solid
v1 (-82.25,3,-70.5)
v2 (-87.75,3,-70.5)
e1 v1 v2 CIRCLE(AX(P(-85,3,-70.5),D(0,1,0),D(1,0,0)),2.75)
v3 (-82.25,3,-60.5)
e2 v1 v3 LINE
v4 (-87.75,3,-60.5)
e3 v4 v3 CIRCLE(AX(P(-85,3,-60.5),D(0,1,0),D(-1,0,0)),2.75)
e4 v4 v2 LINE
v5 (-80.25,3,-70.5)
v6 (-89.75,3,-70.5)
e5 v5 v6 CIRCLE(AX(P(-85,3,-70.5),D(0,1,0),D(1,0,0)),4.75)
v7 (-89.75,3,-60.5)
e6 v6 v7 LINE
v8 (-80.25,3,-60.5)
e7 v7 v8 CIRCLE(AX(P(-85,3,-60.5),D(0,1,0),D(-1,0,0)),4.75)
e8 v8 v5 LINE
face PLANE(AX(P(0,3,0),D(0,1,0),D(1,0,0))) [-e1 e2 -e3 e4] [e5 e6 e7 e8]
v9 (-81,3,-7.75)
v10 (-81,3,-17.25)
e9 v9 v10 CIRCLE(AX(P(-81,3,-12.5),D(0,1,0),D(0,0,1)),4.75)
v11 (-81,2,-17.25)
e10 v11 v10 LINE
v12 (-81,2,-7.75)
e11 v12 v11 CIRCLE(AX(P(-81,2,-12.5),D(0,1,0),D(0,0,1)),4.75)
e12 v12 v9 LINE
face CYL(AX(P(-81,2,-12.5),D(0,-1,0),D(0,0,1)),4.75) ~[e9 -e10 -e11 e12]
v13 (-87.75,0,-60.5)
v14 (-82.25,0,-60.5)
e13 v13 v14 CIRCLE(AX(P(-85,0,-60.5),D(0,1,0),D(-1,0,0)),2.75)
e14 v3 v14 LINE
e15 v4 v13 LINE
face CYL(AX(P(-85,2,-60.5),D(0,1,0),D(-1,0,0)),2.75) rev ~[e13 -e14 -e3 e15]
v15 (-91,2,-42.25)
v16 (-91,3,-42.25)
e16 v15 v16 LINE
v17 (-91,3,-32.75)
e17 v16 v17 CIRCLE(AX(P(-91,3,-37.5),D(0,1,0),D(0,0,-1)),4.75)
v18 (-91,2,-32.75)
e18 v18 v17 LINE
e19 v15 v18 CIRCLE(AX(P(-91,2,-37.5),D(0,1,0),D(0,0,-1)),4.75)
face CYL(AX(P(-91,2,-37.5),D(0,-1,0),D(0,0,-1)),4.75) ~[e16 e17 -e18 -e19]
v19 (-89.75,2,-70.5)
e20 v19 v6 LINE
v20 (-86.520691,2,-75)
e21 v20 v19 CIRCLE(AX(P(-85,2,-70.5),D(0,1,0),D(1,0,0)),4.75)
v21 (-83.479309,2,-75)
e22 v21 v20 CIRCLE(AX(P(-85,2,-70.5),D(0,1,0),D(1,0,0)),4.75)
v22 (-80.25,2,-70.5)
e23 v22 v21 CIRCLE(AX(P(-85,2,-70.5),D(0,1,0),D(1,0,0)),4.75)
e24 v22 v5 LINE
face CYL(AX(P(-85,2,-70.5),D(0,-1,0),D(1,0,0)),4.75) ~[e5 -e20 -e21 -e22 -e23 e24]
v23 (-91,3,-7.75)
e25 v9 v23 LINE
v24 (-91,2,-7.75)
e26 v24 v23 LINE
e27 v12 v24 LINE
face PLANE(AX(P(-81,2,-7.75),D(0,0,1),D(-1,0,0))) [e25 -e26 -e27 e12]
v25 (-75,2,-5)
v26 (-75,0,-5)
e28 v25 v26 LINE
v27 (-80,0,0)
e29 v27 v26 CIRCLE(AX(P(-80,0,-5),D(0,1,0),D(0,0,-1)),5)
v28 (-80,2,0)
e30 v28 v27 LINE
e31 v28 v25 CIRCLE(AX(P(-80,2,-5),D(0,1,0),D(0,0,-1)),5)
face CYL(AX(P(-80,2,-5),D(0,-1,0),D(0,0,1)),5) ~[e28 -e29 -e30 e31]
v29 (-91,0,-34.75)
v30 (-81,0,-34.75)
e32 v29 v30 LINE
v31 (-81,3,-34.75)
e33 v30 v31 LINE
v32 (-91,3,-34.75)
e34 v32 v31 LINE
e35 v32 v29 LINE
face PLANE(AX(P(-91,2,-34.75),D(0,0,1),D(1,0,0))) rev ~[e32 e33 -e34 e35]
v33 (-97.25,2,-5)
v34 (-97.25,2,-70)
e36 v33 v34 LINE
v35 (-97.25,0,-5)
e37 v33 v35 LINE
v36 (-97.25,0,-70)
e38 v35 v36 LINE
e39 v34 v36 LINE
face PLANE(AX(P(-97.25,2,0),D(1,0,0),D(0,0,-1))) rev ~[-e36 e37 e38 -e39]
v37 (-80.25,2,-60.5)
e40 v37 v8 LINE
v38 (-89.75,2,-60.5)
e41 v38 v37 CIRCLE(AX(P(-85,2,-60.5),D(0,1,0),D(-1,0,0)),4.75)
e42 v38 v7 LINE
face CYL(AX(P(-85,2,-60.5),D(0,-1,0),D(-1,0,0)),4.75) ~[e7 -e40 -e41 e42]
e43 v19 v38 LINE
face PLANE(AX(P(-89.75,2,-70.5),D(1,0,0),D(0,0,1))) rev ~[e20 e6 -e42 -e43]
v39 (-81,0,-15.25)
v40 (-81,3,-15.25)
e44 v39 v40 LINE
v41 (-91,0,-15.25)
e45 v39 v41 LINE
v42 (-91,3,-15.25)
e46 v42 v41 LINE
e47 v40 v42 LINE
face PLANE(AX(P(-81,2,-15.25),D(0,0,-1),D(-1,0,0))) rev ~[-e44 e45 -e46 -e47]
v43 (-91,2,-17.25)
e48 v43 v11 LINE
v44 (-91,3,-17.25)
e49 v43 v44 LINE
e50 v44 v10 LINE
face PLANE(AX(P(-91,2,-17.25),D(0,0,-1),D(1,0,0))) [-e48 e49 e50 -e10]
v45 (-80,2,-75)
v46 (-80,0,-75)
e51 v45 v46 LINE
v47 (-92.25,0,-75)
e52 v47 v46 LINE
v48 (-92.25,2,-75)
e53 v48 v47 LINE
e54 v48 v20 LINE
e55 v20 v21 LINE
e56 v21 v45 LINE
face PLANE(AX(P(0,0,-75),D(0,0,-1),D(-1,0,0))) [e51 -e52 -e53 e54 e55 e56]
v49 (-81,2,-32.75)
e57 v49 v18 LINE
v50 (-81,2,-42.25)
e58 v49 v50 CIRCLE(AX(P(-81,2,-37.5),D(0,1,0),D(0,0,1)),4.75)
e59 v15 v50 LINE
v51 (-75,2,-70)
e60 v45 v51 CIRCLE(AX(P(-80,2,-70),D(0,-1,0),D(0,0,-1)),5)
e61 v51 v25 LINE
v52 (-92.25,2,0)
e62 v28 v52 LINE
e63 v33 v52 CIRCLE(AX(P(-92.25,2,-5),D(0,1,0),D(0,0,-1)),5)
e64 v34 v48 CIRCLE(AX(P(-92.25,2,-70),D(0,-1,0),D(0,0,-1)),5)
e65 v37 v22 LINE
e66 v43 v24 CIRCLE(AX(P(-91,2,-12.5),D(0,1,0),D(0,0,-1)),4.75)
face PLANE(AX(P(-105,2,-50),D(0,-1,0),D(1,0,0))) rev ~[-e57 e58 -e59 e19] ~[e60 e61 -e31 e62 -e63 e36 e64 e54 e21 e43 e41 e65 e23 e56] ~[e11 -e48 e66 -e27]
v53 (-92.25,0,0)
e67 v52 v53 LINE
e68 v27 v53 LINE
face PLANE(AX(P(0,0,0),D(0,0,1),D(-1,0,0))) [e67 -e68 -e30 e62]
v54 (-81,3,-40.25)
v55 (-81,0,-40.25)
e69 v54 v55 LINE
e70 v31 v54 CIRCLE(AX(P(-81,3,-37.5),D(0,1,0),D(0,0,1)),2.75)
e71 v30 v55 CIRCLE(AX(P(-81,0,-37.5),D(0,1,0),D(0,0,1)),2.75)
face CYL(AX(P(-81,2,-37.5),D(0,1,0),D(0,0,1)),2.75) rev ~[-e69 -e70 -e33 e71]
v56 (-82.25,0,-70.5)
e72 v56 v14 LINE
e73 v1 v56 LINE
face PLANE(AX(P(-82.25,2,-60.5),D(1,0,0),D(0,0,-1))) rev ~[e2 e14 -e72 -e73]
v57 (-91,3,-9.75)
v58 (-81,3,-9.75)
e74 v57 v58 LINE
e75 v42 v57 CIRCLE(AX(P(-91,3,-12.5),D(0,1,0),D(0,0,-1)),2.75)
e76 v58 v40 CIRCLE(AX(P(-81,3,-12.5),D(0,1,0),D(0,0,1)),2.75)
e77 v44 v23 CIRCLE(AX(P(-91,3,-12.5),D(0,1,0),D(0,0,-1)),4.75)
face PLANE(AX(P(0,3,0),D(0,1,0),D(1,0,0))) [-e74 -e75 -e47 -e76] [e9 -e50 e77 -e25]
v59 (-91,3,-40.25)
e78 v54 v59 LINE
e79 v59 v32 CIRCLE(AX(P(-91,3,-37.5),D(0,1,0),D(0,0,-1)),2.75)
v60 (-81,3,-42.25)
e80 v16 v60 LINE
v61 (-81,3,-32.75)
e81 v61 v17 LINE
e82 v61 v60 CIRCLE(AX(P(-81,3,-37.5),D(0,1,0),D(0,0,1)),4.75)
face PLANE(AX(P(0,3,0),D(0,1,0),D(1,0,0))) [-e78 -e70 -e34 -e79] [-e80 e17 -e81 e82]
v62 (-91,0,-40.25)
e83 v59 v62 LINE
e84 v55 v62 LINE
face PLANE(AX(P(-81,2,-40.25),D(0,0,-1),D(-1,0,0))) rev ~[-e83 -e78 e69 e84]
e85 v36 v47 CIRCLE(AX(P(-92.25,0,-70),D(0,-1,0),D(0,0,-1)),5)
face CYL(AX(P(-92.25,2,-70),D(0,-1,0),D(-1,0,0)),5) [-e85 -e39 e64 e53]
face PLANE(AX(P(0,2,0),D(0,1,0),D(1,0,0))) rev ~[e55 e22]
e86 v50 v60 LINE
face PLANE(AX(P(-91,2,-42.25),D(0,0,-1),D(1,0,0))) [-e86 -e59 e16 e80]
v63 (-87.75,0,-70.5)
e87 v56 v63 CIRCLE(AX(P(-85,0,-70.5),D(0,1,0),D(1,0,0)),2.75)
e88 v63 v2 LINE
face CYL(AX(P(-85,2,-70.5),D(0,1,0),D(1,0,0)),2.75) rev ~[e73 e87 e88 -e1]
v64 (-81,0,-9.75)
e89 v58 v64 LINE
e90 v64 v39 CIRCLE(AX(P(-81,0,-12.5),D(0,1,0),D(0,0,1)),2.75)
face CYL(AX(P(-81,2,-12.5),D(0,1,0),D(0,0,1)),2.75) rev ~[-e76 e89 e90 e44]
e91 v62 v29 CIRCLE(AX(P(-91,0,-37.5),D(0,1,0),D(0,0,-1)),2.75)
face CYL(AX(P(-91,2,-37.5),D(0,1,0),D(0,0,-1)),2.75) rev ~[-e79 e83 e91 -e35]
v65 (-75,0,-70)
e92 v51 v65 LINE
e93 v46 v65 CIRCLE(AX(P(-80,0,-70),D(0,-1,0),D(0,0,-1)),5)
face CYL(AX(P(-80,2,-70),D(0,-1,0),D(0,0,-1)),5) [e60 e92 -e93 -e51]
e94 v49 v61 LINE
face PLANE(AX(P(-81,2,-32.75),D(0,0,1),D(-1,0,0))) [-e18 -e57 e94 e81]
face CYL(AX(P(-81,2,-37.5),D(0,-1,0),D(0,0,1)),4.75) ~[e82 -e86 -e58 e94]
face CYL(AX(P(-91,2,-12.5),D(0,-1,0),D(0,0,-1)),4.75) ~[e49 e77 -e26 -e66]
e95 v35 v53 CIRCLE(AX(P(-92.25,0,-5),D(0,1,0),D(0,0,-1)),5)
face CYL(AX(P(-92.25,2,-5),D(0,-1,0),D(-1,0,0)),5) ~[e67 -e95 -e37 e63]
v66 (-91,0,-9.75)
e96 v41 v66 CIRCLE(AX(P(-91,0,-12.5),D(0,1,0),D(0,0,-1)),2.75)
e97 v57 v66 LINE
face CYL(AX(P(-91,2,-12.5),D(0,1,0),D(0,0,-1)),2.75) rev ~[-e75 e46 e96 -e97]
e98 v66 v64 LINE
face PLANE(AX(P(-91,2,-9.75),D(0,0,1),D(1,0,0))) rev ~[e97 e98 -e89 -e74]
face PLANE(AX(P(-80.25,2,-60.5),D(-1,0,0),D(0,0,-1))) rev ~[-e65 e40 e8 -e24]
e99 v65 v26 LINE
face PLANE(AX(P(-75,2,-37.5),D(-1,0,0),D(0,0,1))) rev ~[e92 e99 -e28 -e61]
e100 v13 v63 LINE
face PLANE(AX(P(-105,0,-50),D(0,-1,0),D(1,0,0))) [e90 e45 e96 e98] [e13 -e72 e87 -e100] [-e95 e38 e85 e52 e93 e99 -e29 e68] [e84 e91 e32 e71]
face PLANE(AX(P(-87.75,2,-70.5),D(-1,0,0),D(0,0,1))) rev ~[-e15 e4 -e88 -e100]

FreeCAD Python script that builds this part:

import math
import FreeCAD as App
import Part
import Sketcher
from FreeCAD import Vector


def edges_at(feature, points):
    """Names of the edges that pass closest to the given points."""
    edges = feature.Shape.Edges
    near = lambda p: min(range(len(edges)), key=lambda i: edges[i].distToShape(Part.Vertex(*p))[0])
    return sorted({f"Edge{near(p) + 1}" for p in points})


def add_polygon(sketch, points):
    """Adds a closed chain of lines whose ends are joined by coincident constraints."""
    first, n = sketch.GeometryCount, len(points)
    for a, b in zip(points, points[1:] + points[:1]):
        sketch.addGeometry(Part.LineSegment(App.Vector(*a, 0), App.Vector(*b, 0)), False)
    for i in range(n):
        sketch.addConstraint(Sketcher.Constraint("Coincident", first + i, 2, first + (i + 1) % n, 1))

doc = App.newDocument("Part")
body = doc.addObject("PartDesign::Body", "Body")

# Sketch on XZ plane
sketch1 = doc.addObject("Sketcher::SketchObject", "Sketch")
body.addObject(sketch1)
sketch1.AttachmentSupport = (doc.XZ_Plane, [""])
sketch1.MapMode = "FlatFace"
add_polygon(sketch1, [(-105, 0), (0, 0), (0, -50), (-105, -50)])  # lines 0-3
sketch1.addConstraint(Sketcher.Constraint("Horizontal", 0))
sketch1.addConstraint(Sketcher.Constraint("Vertical", 1))
sketch1.addConstraint(Sketcher.Constraint("Horizontal", 2))
sketch1.addConstraint(Sketcher.Constraint("Vertical", 3))
sketch1.addConstraint(Sketcher.Constraint("Coincident", 0, 2, -1, 1))
sketch1.addConstraint(Sketcher.Constraint("DistanceX", 0, 1, 0, 2, 105.0))
sketch1.addConstraint(Sketcher.Constraint("DistanceY", 1, 2, 1, 1, 50.0))
pad1 = doc.addObject("PartDesign::Pad", "Pad")
body.addObject(pad1)
pad1.Profile = sketch1
pad1.Length = 2
pad1.Reversed = True

# Sketch on XZ plane
sketch2 = doc.addObject("Sketcher::SketchObject", "Sketch001")
body.addObject(sketch2)
sketch2.AttachmentSupport = (doc.XZ_Plane, [""])
sketch2.MapMode = "FlatFace"
sketch2.AttachmentOffset = App.Placement(Vector(0, 0, -2), App.Rotation())
sketch2.addGeometry(Part.Circle(Vector(-20, -12.5, 0), Vector(0, 0, 1), 2.8), False)
sketch2.addGeometry(Part.Circle(Vector(-20, -37.5, 0), Vector(0, 0, 1), 2.8), False)
sketch2.addConstraint(Sketcher.Constraint("Equal", 0, 1))
sketch2.addConstraint(Sketcher.Constraint("Vertical", 0, 3, 1, 3))
sketch2.addConstraint(Sketcher.Constraint("Diameter", 0, 5.5))
sketch2.addConstraint(Sketcher.Constraint("DistanceX", 0, 3, -1, 1, 20.0))
sketch2.addConstraint(Sketcher.Constraint("DistanceY", 1, 3, 0, 3, 25.0))
sketch2.addConstraint(Sketcher.Constraint("DistanceY", 0, 3, -1, 1, 12.5))
pocket1 = doc.addObject("PartDesign::Pocket", "Pocket")
body.addObject(pocket1)
pocket1.Profile = sketch2
pocket1.Type = "ThroughAll"
pocket1.Reversed = True

# Sketch on XZ plane
sketch3 = doc.addObject("Sketcher::SketchObject", "Sketch002")
body.addObject(sketch3)
sketch3.AttachmentSupport = (doc.XZ_Plane, [""])
sketch3.MapMode = "FlatFace"
sketch3.AttachmentOffset = App.Placement(Vector(0, 0, -2), App.Rotation())
sketch3.addGeometry(Part.ArcOfCircle(Part.Circle(Vector(-81, -12.5, 0), Vector(0, 0, 1), 2.8), math.radians(-90), math.radians(90)), False)
sketch3.addGeometry(Part.LineSegment(Vector(-81, -15.2, 0), Vector(-91, -15.2, 0)), False)
sketch3.addGeometry(Part.ArcOfCircle(Part.Circle(Vector(-91, -12.5, 0), Vector(0, 0, 1), 2.8), math.radians(90), math.radians(270)), False)
sketch3.addGeometry(Part.LineSegment(Vector(-91, -9.8, 0), Vector(-81, -9.8, 0)), False)
sketch3.addConstraint(Sketcher.Constraint("Tangent", 0, 1, 1, 1))
sketch3.addConstraint(Sketcher.Constraint("Tangent", 1, 2, 2, 2))
sketch3.addConstraint(Sketcher.Constraint("Tangent", 2, 1, 3, 1))
sketch3.addConstraint(Sketcher.Constraint("Tangent", 3, 2, 0, 2))
sketch3.addConstraint(Sketcher.Constraint("Horizontal", 1))
sketch3.addConstraint(Sketcher.Constraint("Horizontal", 3))
sketch3.addConstraint(Sketcher.Constraint("DistanceX", 1, 2, 1, 1, 10.0))
sketch3.addConstraint(Sketcher.Constraint("Radius", 0, 2.75))
sketch3.addConstraint(Sketcher.Constraint("DistanceX", 0, 3, -1, 1, 81.0))
sketch3.addConstraint(Sketcher.Constraint("DistanceY", 0, 3, -1, 1, 12.5))
pocket2 = doc.addObject("PartDesign::Pocket", "Pocket001")
body.addObject(pocket2)
pocket2.Profile = sketch3
pocket2.Type = "ThroughAll"
pocket2.Reversed = True
doc.recompute()

linearpattern = doc.addObject("PartDesign::LinearPattern", "LinearPattern")
body.addObject(linearpattern)
linearpattern.Originals = [pocket2]
linearpattern.Direction = (doc.Z_Axis, [""])
linearpattern.Mode = "offset"
linearpattern.Offset = 25
linearpattern.Occurrences = 2
linearpattern.Reversed = True
body.Tip = linearpattern

# Sketch on XY plane
sketch4 = doc.addObject("Sketcher::SketchObject", "Sketch003")
body.addObject(sketch4)
sketch4.AttachmentSupport = (doc.XY_Plane, [""])
sketch4.MapMode = "FlatFace"
sketch4.AttachmentOffset = App.Placement(Vector(0, 0, -50), App.Rotation())
add_polygon(sketch4, [(-75, 0), (-105, 0), (-105, 2), (-75, 2)])  # lines 0-3
sketch4.addConstraint(Sketcher.Constraint("Horizontal", 0))
sketch4.addConstraint(Sketcher.Constraint("Vertical", 1))
sketch4.addConstraint(Sketcher.Constraint("Horizontal", 2))
sketch4.addConstraint(Sketcher.Constraint("Vertical", 3))
sketch4.addConstraint(Sketcher.Constraint("PointOnObject", 0, 2, -1))
sketch4.addConstraint(Sketcher.Constraint("DistanceX", 0, 2, 0, 1, 30.0))
sketch4.addConstraint(Sketcher.Constraint("DistanceY", 1, 1, 1, 2, 2.0))
sketch4.addConstraint(Sketcher.Constraint("DistanceX", 0, 2, -1, 1, 105.0))
pad2 = doc.addObject("PartDesign::Pad", "Pad001")
body.addObject(pad2)
pad2.Profile = sketch4
pad2.Length = 25
pad2.Reversed = True

# Sketch on XZ plane
sketch5 = doc.addObject("Sketcher::SketchObject", "Sketch004")
body.addObject(sketch5)
sketch5.AttachmentSupport = (doc.XZ_Plane, [""])
sketch5.MapMode = "FlatFace"
sketch5.AttachmentOffset = App.Placement(Vector(0, 0, -2), App.Rotation())
sketch5.addGeometry(Part.ArcOfCircle(Part.Circle(Vector(-85, -60.5, 0), Vector(0, 0, 1), 2.8), math.radians(0), math.radians(180)), False)
sketch5.addGeometry(Part.LineSegment(Vector(-82.2, -60.5, 0), Vector(-82.2, -70.5, 0)), False)
sketch5.addGeometry(Part.ArcOfCircle(Part.Circle(Vector(-85, -70.5, 0), Vector(0, 0, 1), 2.8), math.radians(180), math.radians(360)), False)
sketch5.addGeometry(Part.LineSegment(Vector(-87.8, -70.5, 0), Vector(-87.8, -60.5, 0)), False)
sketch5.addConstraint(Sketcher.Constraint("Tangent", 0, 1, 1, 1))
sketch5.addConstraint(Sketcher.Constraint("Tangent", 1, 2, 2, 2))
sketch5.addConstraint(Sketcher.Constraint("Tangent", 2, 1, 3, 1))
sketch5.addConstraint(Sketcher.Constraint("Tangent", 3, 2, 0, 2))
sketch5.addConstraint(Sketcher.Constraint("Vertical", 1))
sketch5.addConstraint(Sketcher.Constraint("Vertical", 3))
sketch5.addConstraint(Sketcher.Constraint("DistanceY", 1, 2, 1, 1, 10.0))
sketch5.addConstraint(Sketcher.Constraint("Radius", 0, 2.75))
sketch5.addConstraint(Sketcher.Constraint("DistanceX", 0, 3, -1, 1, 85.0))
sketch5.addConstraint(Sketcher.Constraint("DistanceY", 0, 3, -1, 1, 60.5))
pocket3 = doc.addObject("PartDesign::Pocket", "Pocket002")
body.addObject(pocket3)
pocket3.Profile = sketch5
pocket3.Type = "ThroughAll"
pocket3.Reversed = True
doc.recompute()

fillet = doc.addObject("PartDesign::Fillet", "Fillet")
body.addObject(fillet)
fillet.Base = (pocket3, edges_at(pocket3, [
    (-105, 1, 0),
    (0, 1, 0),
    (-75, 1, -75),
    (-105, 1, -75),
    (0, 1, -50),
    (-75, 1, -50),
]))
fillet.Radius = 5

# Sketch on XZ plane
sketch6 = doc.addObject("Sketcher::SketchObject", "Sketch005")
body.addObject(sketch6)
sketch6.AttachmentSupport = (doc.XZ_Plane, [""])
sketch6.MapMode = "FlatFace"
sketch6.AttachmentOffset = App.Placement(Vector(0, 0, -2), App.Rotation())
sketch6.addGeometry(Part.Circle(Vector(-62, -12.5, 0), Vector(0, 0, 1), 2.8), False)
sketch6.addGeometry(Part.Circle(Vector(-42, -12.5, 0), Vector(0, 0, 1), 2.8), False)
sketch6.addGeometry(Part.Circle(Vector(-42, -37.5, 0), Vector(0, 0, 1), 2.8), False)
sketch6.addGeometry(Part.Circle(Vector(-62, -37.5, 0), Vector(0, 0, 1), 2.8), False)
sketch6.addConstraint(Sketcher.Constraint("Equal", 0, 1))
sketch6.addConstraint(Sketcher.Constraint("Equal", 1, 2))
sketch6.addConstraint(Sketcher.Constraint("Equal", 2, 3))
sketch6.addConstraint(Sketcher.Constraint("Horizontal", 0, 3, 1, 3))
sketch6.addConstraint(Sketcher.Constraint("Horizontal", 2, 3, 3, 3))
sketch6.addConstraint(Sketcher.Constraint("Vertical", 1, 3, 2, 3))
sketch6.addConstraint(Sketcher.Constraint("Vertical", 0, 3, 3, 3))
sketch6.addConstraint(Sketcher.Constraint("Diameter", 0, 5.5))
sketch6.addConstraint(Sketcher.Constraint("DistanceX", 0, 3, 1, 3, 20.0))
sketch6.addConstraint(Sketcher.Constraint("DistanceY", 2, 3, 1, 3, 25.0))
sketch6.addConstraint(Sketcher.Constraint("DistanceX", 0, 3, -1, 1, 62.0))
sketch6.addConstraint(Sketcher.Constraint("DistanceY", 0, 3, -1, 1, 12.5))
pocket4 = doc.addObject("PartDesign::Pocket", "Pocket003")
body.addObject(pocket4)
pocket4.Profile = sketch6
pocket4.Type = "ThroughAll"
pocket4.Reversed = True

# Sketch on XZ plane
sketch7 = doc.addObject("Sketcher::SketchObject", "Sketch006")
body.addObject(sketch7)
sketch7.AttachmentSupport = (doc.XZ_Plane, [""])
sketch7.MapMode = "FlatFace"
sketch7.AttachmentOffset = App.Placement(Vector(0, 0, -2), App.Rotation())
sketch7.addGeometry(Part.Circle(Vector(-100, -70, 0), Vector(0, 0, 1), 2.8), False)
sketch7.addGeometry(Part.Circle(Vector(-100, -5, 0), Vector(0, 0, 1), 2.8), False)
sketch7.addGeometry(Part.Circle(Vector(-5, -45, 0), Vector(0, 0, 1), 2.8), False)
sketch7.addGeometry(Part.Circle(Vector(-5, -5, 0), Vector(0, 0, 1), 2.8), False)
sketch7.addConstraint(Sketcher.Constraint("Equal", 0, 1))
sketch7.addConstraint(Sketcher.Constraint("Equal", 1, 2))
sketch7.addConstraint(Sketcher.Constraint("Equal", 2, 3))
sketch7.addConstraint(Sketcher.Constraint("Horizontal", 1, 3, 3, 3))
sketch7.addConstraint(Sketcher.Constraint("Vertical", 0, 3, 1, 3))
sketch7.addConstraint(Sketcher.Constraint("Vertical", 2, 3, 3, 3))
sketch7.addConstraint(Sketcher.Constraint("Diameter", 0, 5.5))
sketch7.addConstraint(Sketcher.Constraint("DistanceY", 1, 3, -1, 1, 5.0))
sketch7.addConstraint(Sketcher.Constraint("DistanceX", 2, 3, -1, 1, 5.0))
sketch7.addConstraint(Sketcher.Constraint("DistanceX", 0, 3, -1, 1, 100.0))
sketch7.addConstraint(Sketcher.Constraint("DistanceY", 0, 3, -1, 1, 70.0))
sketch7.addConstraint(Sketcher.Constraint("DistanceY", 2, 3, -1, 1, 45.0))
pocket5 = doc.addObject("PartDesign::Pocket", "Pocket004")
body.addObject(pocket5)
pocket5.Profile = sketch7
pocket5.Type = "ThroughAll"
pocket5.Reversed = True

# Sketch on XZ plane
sketch8 = doc.addObject("Sketcher::SketchObject", "Sketch007")
body.addObject(sketch8)
sketch8.AttachmentSupport = (doc.XZ_Plane, [""])
sketch8.MapMode = "FlatFace"
sketch8.AttachmentOffset = App.Placement(Vector(0, 0, -2), App.Rotation())
add_polygon(sketch8, [(-75, -84.3), (-75, -37.5), (-75, 9.7), (39.9, 9.7), (39.9, -84.3)])  # lines 0-4
sketch8.addGeometry(Part.Circle(Vector(-20, -37.5, 0), Vector(0, 0, 1), 2.8), False)  # 5
sketch8.addConstraint(Sketcher.Constraint("Vertical", 0))
sketch8.addConstraint(Sketcher.Constraint("Vertical", 1))
sketch8.addConstraint(Sketcher.Constraint("Horizontal", 2))
sketch8.addConstraint(Sketcher.Constraint("Vertical", 3))
sketch8.addConstraint(Sketcher.Constraint("Horizontal", 4))
sketch8.addConstraint(Sketcher.Constraint("Horizontal", 5, 3, 0, 2))
sketch8.addConstraint(Sketcher.Constraint("DistanceX", 0, 2, 5, 3, 55.0))
sketch8.addConstraint(Sketcher.Constraint("Diameter", 5, 5.5))
sketch8.addConstraint(Sketcher.Constraint("DistanceX", 5, 3, -1, 1, 20.0))
sketch8.addConstraint(Sketcher.Constraint("DistanceY", 5, 3, -1, 1, 37.5))
sketch8.addConstraint(Sketcher.Constraint("DistanceX", 2, 1, 2, 2, 114.8676))
sketch8.addConstraint(Sketcher.Constraint("DistanceY", 0, 1, 0, 2, 46.7747))
sketch8.addConstraint(Sketcher.Constraint("DistanceY", 1, 1, 1, 2, 47.1878))
pocket6 = doc.addObject("PartDesign::Pocket", "Pocket005")
body.addObject(pocket6)
pocket6.Profile = sketch8
pocket6.Type = "ThroughAll"
pocket6.Reversed = True

# Sketch on XZ plane
sketch9 = doc.addObject("Sketcher::SketchObject", "Sketch008")
body.addObject(sketch9)
sketch9.AttachmentSupport = (doc.XZ_Plane, [""])
sketch9.MapMode = "FlatFace"
sketch9.AttachmentOffset = App.Placement(Vector(0, 0, -2), App.Rotation())
add_polygon(sketch9, [(-108, -77), (-108, 0), (-97, 0), (-97, -77)])  # lines 0-3
sketch9.addConstraint(Sketcher.Constraint("Vertical", 0))
sketch9.addConstraint(Sketcher.Constraint("Horizontal", 1))
sketch9.addConstraint(Sketcher.Constraint("Vertical", 2))
sketch9.addConstraint(Sketcher.Constraint("Horizontal", 3))
sketch9.addConstraint(Sketcher.Constraint("PointOnObject", 0, 2, -1))
sketch9.addConstraint(Sketcher.Constraint("DistanceY", 0, 1, 0, 2, 76.821))
sketch9.addConstraint(Sketcher.Constraint("DistanceX", 1, 2, -1, 1, 97.25))
sketch9.addConstraint(Sketcher.Constraint("DistanceX", 1, 1, 1, 2, 11.1927))
pocket7 = doc.addObject("PartDesign::Pocket", "Pocket006")
body.addObject(pocket7)
pocket7.Profile = sketch9
pocket7.Type = "ThroughAll"
pocket7.Reversed = True
doc.recompute()

fillet2 = doc.addObject("PartDesign::Fillet", "Fillet001")
body.addObject(fillet2)
fillet2.Base = (pocket7, edges_at(pocket7, [(-97.25, 1, -75), (-97.25, 1, 0), (-75, 1, 0)]))
fillet2.Radius = 5

# Sketch on XZ plane
sketch10 = doc.addObject("Sketcher::SketchObject", "Sketch009")
body.addObject(sketch10)
sketch10.AttachmentSupport = (doc.XZ_Plane, [""])
sketch10.MapMode = "FlatFace"
sketch10.AttachmentOffset = App.Placement(Vector(0, 0, -2), App.Rotation())
sketch10.addGeometry(Part.LineSegment(Vector(-81, -17.2, 0), Vector(-91, -17.2, 0)), False)
sketch10.addGeometry(Part.ArcOfCircle(Part.Circle(Vector(-91, -12.5, 0), Vector(0, 0, 1), 4.8), math.radians(90), math.radians(270)), False)
sketch10.addGeometry(Part.LineSegment(Vector(-91, -7.8, 0), Vector(-81, -7.8, 0)), False)
sketch10.addGeometry(Part.ArcOfCircle(Part.Circle(Vector(-81, -12.5, 0), Vector(0, 0, 1), 4.8), math.radians(-90), math.radians(90)), False)
sketch10.addGeometry(Part.ArcOfCircle(Part.Circle(Vector(-91, -12.5, 0), Vector(0, 0, 1), 2.8), math.radians(90), math.radians(270)), False)
sketch10.addGeometry(Part.LineSegment(Vector(-91, -15.2, 0), Vector(-81, -15.2, 0)), False)
sketch10.addGeometry(Part.ArcOfCircle(Part.Circle(Vector(-81, -12.5, 0), Vector(0, 0, 1), 2.8), math.radians(-90), math.radians(90)), False)
sketch10.addGeometry(Part.LineSegment(Vector(-81, -9.8, 0), Vector(-91, -9.8, 0)), False)
sketch10.addGeometry(Part.LineSegment(Vector(-81, -42.2, 0), Vector(-91, -42.2, 0)), False)
sketch10.addGeometry(Part.ArcOfCircle(Part.Circle(Vector(-91, -37.5, 0), Vector(0, 0, 1), 4.8), math.radians(90), math.radians(270)), False)
sketch10.addGeometry(Part.LineSegment(Vector(-91, -32.8, 0), Vector(-81, -32.8, 0)), False)
sketch10.addGeometry(Part.ArcOfCircle(Part.Circle(Vector(-81, -37.5, 0), Vector(0, 0, 1), 4.8), math.radians(-90), math.radians(90)), False)
sketch10.addGeometry(Part.ArcOfCircle(Part.Circle(Vector(-91, -37.5, 0), Vector(0, 0, 1), 2.8), math.radians(90), math.radians(270)), False)
sketch10.addGeometry(Part.LineSegment(Vector(-91, -40.2, 0), Vector(-81, -40.2, 0)), False)
sketch10.addGeometry(Part.ArcOfCircle(Part.Circle(Vector(-81, -37.5, 0), Vector(0, 0, 1), 2.8), math.radians(-90), math.radians(90)), False)
sketch10.addGeometry(Part.LineSegment(Vector(-81, -34.8, 0), Vector(-91, -34.8, 0)), False)
sketch10.addGeometry(Part.ArcOfCircle(Part.Circle(Vector(-85, -60.5, 0), Vector(0, 0, 1), 4.8), math.radians(0), math.radians(180)), False)
sketch10.addGeometry(Part.LineSegment(Vector(-80.2, -60.5, 0), Vector(-80.2, -70.5, 0)), False)
sketch10.addGeometry(Part.ArcOfCircle(Part.Circle(Vector(-85, -70.5, 0), Vector(0, 0, 1), 4.8), math.radians(180), math.radians(360)), False)
sketch10.addGeometry(Part.LineSegment(Vector(-89.8, -70.5, 0), Vector(-89.8, -60.5, 0)), False)
sketch10.addGeometry(Part.ArcOfCircle(Part.Circle(Vector(-85, -60.5, 0), Vector(0, 0, 1), 2.8), math.radians(0), math.radians(180)), False)
sketch10.addGeometry(Part.LineSegment(Vector(-87.8, -60.5, 0), Vector(-87.8, -70.5, 0)), False)
sketch10.addGeometry(Part.ArcOfCircle(Part.Circle(Vector(-85, -70.5, 0), Vector(0, 0, 1), 2.8), math.radians(180), math.radians(360)), False)
sketch10.addGeometry(Part.LineSegment(Vector(-82.2, -70.5, 0), Vector(-82.2, -60.5, 0)), False)
sketch10.addConstraint(Sketcher.Constraint("Tangent", 0, 2, 1, 2))
sketch10.addConstraint(Sketcher.Constraint("Tangent", 1, 1, 2, 1))
sketch10.addConstraint(Sketcher.Constraint("Tangent", 2, 2, 3, 2))
sketch10.addConstraint(Sketcher.Constraint("Tangent", 3, 1, 0, 1))
sketch10.addConstraint(Sketcher.Constraint("Tangent", 4, 2, 5, 1))
sketch10.addConstraint(Sketcher.Constraint("Tangent", 5, 2, 6, 1))
sketch10.addConstraint(Sketcher.Constraint("Tangent", 6, 2, 7, 1))
sketch10.addConstraint(Sketcher.Constraint("Tangent", 7, 2, 4, 1))
sketch10.addConstraint(Sketcher.Constraint("Tangent", 8, 2, 9, 2))
sketch10.addConstraint(Sketcher.Constraint("Tangent", 9, 1, 10, 1))
sketch10.addConstraint(Sketcher.Constraint("Tangent", 10, 2, 11, 2))
sketch10.addConstraint(Sketcher.Constraint("Tangent", 11, 1, 8, 1))
sketch10.addConstraint(Sketcher.Constraint("Tangent", 12, 2, 13, 1))
sketch10.addConstraint(Sketcher.Constraint("Tangent", 13, 2, 14, 1))
sketch10.addConstraint(Sketcher.Constraint("Tangent", 14, 2, 15, 1))
sketch10.addConstraint(Sketcher.Constraint("Tangent", 15, 2, 12, 1))
sketch10.addConstraint(Sketcher.Constraint("Tangent", 16, 1, 17, 1))
sketch10.addConstraint(Sketcher.Constraint("Tangent", 17, 2, 18, 2))
sketch10.addConstraint(Sketcher.Constraint("Tangent", 18, 1, 19, 1))
sketch10.addConstraint(Sketcher.Constraint("Tangent", 19, 2, 16, 2))
sketch10.addConstraint(Sketcher.Constraint("Tangent", 20, 2, 21, 1))
sketch10.addConstraint(Sketcher.Constraint("Tangent", 21, 2, 22, 1))
sketch10.addConstraint(Sketcher.Constraint("Tangent", 22, 2, 23, 1))
sketch10.addConstraint(Sketcher.Constraint("Tangent", 23, 2, 20, 1))
sketch10.addConstraint(Sketcher.Constraint("Horizontal", 0))
sketch10.addConstraint(Sketcher.Constraint("Horizontal", 2))
sketch10.addConstraint(Sketcher.Constraint("Horizontal", 5))
sketch10.addConstraint(Sketcher.Constraint("Horizontal", 7))
sketch10.addConstraint(Sketcher.Constraint("Horizontal", 8))
sketch10.addConstraint(Sketcher.Constraint("Horizontal", 10))
sketch10.addConstraint(Sketcher.Constraint("Horizontal", 13))
sketch10.addConstraint(Sketcher.Constraint("Horizontal", 15))
sketch10.addConstraint(Sketcher.Constraint("Vertical", 17))
sketch10.addConstraint(Sketcher.Constraint("Vertical", 19))
sketch10.addConstraint(Sketcher.Constraint("Vertical", 21))
sketch10.addConstraint(Sketcher.Constraint("Vertical", 23))
sketch10.addConstraint(Sketcher.Constraint("Coincident", 4, 3, 1, 3))
sketch10.addConstraint(Sketcher.Constraint("Coincident", 12, 3, 9, 3))
sketch10.addConstraint(Sketcher.Constraint("Coincident", 20, 3, 16, 3))
sketch10.addConstraint(Sketcher.Constraint("Equal", 3, 9))
sketch10.addConstraint(Sketcher.Constraint("Equal", 6, 12))
sketch10.addConstraint(Sketcher.Constraint("Equal", 11, 16))
sketch10.addConstraint(Sketcher.Constraint("Equal", 14, 20))
sketch10.addConstraint(Sketcher.Constraint("Horizontal", 22, 3, 17, 2))
sketch10.addConstraint(Sketcher.Constraint("Vertical", 4, 3, 9, 3))
sketch10.addConstraint(Sketcher.Constraint("Vertical", 6, 3, 11, 3))
sketch10.addConstraint(Sketcher.Constraint("Vertical", 6, 3, 14, 3))
sketch10.addConstraint(Sketcher.Constraint("Vertical", 14, 3, 2, 2))
sketch10.addConstraint(Sketcher.Constraint("Equal", 15, 17))
sketch10.addConstraint(Sketcher.Constraint("DistanceY", 0, 2, 4, 2, 2.0))
sketch10.addConstraint(Sketcher.Constraint("DistanceX", 0, 2, 0, 1, 10.0))
sketch10.addConstraint(Sketcher.Constraint("Radius", 1, 4.75))
sketch10.addConstraint(Sketcher.Constraint("DistanceX", 1, 3, -1, 1, 91.0))
sketch10.addConstraint(Sketcher.Constraint("DistanceX", 16, 3, -1, 1, 85.0))
sketch10.addConstraint(Sketcher.Constraint("DistanceY", 9, 3, 1, 3, 25.0))
sketch10.addConstraint(Sketcher.Constraint("DistanceY", 16, 3, 11, 3, 23.0))
sketch10.addConstraint(Sketcher.Constraint("DistanceY", 1, 3, -1, 1, 12.5))
pad3 = doc.addObject("PartDesign::Pad", "Pad002")
body.addObject(pad3)
pad3.Profile = sketch10
pad3.Length = 1
pad3.Reversed = True

doc.recompute()
